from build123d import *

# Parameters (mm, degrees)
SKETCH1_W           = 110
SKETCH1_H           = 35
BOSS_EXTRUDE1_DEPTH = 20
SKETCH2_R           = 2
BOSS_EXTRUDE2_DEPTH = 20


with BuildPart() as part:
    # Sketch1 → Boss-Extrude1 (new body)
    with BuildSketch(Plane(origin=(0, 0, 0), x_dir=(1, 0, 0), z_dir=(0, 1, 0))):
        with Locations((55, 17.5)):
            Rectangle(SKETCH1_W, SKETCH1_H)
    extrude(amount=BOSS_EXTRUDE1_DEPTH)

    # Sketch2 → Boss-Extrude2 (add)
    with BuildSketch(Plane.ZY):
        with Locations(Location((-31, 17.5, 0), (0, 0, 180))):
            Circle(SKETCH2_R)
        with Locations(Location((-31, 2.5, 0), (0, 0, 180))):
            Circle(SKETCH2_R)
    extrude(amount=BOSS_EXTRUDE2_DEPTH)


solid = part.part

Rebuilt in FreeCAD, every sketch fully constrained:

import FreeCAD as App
import Part
import Sketcher
from FreeCAD import Vector

doc = App.newDocument("Part")
body = doc.addObject("PartDesign::Body", "Body")

# Sketch on XZ plane
sketch1 = body.newObject("Sketcher::SketchObject", "Sketch")
sketch1.AttachmentSupport = (doc.getObject("XZ_Plane"), [""])
sketch1.MapMode = "FlatFace"
sketch1.addGeometry([
    Part.LineSegment(Vector(0, -35, 0), Vector(0, 0, 0)),
    Part.LineSegment(Vector(0, 0, 0), Vector(110, 0, 0)),
    Part.LineSegment(Vector(110, 0, 0), Vector(110, -35, 0)),
    Part.LineSegment(Vector(110, -35, 0), Vector(0, -35, 0)),
], False)
sketch1.addConstraint([
    Sketcher.Constraint("Coincident", 0, 2, 1, 1),
    Sketcher.Constraint("Coincident", 1, 2, 2, 1),
    Sketcher.Constraint("Coincident", 2, 2, 3, 1),
    Sketcher.Constraint("Coincident", 3, 2, 0, 1),
    Sketcher.Constraint("Vertical", 0),
    Sketcher.Constraint("Horizontal", 1),
    Sketcher.Constraint("Vertical", 2),
    Sketcher.Constraint("Horizontal", 3),
    Sketcher.Constraint("Coincident", 0, 2, -1, 1),
    Sketcher.Constraint("DistanceX", 1, 1, 1, 2, 110.0),
    Sketcher.Constraint("DistanceY", 0, 1, 0, 2, 35.0),
])
pad1 = body.newObject("PartDesign::Pad", "Pad")
pad1.Profile = sketch1
pad1.Length = 20
pad1.Reversed = True

# Sketch on YZ plane
sketch2 = body.newObject("Sketcher::SketchObject", "Sketch001")
sketch2.AttachmentSupport = (doc.getObject("YZ_Plane"), [""])
sketch2.MapMode = "FlatFace"
sketch2.addGeometry([
    Part.Circle(Vector(17.5, -31, 0), Vector(0, 0, 1), 2),
    Part.Circle(Vector(2.5, -31, 0), Vector(0, 0, 1), 2),
], False)
sketch2.addConstraint([
    Sketcher.Constraint("Equal", 0, 1),
    Sketcher.Constraint("Horizontal", 0, 3, 1, 3),
    Sketcher.Constraint("Diameter", 0, 4.0),
    Sketcher.Constraint("DistanceY", 0, 3, -1, 1, 31.0),
    Sketcher.Constraint("DistanceX", 1, 3, 0, 3, 15.0),
    Sketcher.Constraint("DistanceX", -1, 1, 0, 3, 17.5),
])
pad2 = body.newObject("PartDesign::Pad", "Pad001")
pad2.Profile = sketch2
pad2.Length = 20
pad2.Reversed = True

doc.recompute()
